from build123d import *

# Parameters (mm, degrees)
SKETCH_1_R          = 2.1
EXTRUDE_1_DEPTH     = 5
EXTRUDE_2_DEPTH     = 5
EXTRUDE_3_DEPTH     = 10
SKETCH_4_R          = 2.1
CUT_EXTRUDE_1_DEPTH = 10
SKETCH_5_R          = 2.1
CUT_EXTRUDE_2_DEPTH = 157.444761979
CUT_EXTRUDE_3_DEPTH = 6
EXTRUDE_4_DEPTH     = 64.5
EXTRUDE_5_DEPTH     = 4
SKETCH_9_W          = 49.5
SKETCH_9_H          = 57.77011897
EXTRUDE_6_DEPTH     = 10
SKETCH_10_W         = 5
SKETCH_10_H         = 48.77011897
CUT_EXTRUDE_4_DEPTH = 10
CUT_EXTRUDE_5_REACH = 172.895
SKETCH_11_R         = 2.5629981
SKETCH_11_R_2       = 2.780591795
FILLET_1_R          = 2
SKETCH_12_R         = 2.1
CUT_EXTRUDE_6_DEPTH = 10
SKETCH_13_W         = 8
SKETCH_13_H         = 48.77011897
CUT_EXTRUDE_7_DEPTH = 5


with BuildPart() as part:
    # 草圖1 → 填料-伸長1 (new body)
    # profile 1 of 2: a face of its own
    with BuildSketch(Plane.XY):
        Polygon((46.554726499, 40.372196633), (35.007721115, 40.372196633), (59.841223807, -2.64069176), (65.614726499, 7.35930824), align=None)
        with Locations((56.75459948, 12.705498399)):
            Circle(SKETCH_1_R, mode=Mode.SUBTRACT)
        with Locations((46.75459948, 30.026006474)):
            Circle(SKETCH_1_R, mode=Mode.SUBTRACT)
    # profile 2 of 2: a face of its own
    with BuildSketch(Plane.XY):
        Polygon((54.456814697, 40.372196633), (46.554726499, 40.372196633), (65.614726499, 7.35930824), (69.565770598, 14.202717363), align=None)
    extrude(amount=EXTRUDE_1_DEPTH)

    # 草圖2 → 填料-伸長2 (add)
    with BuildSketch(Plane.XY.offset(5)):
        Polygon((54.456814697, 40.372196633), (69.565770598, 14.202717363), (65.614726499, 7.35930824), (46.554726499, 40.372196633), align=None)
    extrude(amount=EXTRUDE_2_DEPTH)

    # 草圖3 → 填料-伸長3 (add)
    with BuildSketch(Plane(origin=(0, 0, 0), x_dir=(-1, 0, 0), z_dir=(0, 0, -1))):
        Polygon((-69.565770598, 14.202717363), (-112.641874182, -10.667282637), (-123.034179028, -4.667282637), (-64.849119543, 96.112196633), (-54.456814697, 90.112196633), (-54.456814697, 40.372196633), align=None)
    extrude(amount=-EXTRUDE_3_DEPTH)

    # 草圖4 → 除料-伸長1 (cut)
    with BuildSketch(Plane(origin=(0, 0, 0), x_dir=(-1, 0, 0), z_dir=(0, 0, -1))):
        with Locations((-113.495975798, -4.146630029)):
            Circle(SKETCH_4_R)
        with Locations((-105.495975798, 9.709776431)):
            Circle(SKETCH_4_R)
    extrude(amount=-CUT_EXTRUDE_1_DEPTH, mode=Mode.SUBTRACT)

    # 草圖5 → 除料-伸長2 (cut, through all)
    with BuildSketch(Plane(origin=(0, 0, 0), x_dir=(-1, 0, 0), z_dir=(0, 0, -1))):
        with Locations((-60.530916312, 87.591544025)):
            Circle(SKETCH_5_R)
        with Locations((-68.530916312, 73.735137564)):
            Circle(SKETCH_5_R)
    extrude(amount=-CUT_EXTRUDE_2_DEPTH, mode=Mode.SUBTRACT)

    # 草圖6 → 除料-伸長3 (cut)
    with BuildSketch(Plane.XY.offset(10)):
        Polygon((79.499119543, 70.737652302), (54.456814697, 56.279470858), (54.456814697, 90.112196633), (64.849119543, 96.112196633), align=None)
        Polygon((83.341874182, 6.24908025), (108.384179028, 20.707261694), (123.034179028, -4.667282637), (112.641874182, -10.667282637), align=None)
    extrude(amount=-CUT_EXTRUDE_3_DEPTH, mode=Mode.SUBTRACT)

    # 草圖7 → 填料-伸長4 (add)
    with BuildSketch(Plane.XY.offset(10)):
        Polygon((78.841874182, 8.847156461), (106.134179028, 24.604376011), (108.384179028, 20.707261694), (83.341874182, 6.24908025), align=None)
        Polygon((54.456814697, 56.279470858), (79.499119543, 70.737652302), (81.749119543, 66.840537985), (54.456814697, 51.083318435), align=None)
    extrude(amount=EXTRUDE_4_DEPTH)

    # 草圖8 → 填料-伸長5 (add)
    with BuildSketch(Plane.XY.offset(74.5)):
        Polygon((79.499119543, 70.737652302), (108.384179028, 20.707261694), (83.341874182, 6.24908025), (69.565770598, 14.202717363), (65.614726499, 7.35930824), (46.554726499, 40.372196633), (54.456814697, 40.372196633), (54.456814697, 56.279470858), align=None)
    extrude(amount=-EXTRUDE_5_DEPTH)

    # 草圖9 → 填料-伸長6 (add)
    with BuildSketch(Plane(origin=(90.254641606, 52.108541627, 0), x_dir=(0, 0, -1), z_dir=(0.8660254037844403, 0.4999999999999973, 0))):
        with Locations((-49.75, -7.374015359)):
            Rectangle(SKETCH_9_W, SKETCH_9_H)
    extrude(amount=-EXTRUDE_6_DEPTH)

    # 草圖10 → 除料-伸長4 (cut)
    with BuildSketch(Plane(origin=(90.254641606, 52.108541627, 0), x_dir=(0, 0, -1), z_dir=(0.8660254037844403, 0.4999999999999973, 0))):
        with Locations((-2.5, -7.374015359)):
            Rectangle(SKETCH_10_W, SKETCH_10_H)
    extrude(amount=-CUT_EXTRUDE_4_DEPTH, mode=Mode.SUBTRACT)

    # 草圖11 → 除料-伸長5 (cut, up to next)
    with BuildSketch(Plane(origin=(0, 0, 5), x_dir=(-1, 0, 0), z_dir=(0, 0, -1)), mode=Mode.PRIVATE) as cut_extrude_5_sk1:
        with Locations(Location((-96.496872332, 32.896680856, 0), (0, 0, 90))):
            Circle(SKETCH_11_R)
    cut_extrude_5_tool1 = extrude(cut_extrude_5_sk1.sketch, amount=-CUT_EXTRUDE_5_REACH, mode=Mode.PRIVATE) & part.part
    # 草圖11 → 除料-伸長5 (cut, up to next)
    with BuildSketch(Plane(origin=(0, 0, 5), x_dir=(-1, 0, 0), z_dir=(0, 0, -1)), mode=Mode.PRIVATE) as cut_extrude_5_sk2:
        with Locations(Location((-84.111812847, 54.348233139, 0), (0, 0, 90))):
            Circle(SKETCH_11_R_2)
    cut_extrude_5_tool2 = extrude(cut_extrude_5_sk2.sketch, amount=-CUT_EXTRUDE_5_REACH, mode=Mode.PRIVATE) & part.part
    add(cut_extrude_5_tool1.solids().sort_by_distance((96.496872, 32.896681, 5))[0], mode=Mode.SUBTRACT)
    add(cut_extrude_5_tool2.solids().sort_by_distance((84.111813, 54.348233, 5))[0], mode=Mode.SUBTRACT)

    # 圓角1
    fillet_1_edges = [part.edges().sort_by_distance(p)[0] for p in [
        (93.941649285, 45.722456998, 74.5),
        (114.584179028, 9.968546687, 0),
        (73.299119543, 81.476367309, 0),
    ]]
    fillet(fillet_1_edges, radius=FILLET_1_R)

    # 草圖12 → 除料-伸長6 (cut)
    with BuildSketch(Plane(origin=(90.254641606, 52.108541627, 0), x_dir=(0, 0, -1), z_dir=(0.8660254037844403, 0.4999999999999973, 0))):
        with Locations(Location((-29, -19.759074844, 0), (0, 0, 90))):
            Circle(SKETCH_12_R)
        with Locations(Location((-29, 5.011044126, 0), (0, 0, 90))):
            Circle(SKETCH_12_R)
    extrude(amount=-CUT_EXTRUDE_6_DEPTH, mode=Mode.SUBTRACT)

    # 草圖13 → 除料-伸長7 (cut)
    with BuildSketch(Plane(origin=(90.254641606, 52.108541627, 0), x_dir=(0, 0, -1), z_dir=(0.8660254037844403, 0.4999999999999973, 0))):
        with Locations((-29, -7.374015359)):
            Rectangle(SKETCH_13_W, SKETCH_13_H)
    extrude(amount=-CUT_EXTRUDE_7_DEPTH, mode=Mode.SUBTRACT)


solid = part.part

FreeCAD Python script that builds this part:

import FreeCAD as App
import Part
import Sketcher
from FreeCAD import Vector
Q = App.Units.Quantity


def edges_at(feature, points):
    """Names of the edges that pass closest to the given points."""
    edges = feature.Shape.Edges
    near = lambda p: min(range(len(edges)), key=lambda i: edges[i].distToShape(Part.Vertex(*p))[0])
    return sorted({f"Edge{near(p) + 1}" for p in points})


def add_polygon(sketch, points):
    """Adds a closed chain of lines whose ends are joined by coincident constraints."""
    first, n = sketch.GeometryCount, len(points)
    for a, b in zip(points, points[1:] + points[:1]):
        sketch.addGeometry(Part.LineSegment(App.Vector(*a, 0), App.Vector(*b, 0)), False)
    for i in range(n):
        sketch.addConstraint(Sketcher.Constraint("Coincident", first + i, 2, first + (i + 1) % n, 1))

doc = App.newDocument("Part")
body = doc.addObject("PartDesign::Body", "Body")

# Sketch on XY plane
sketch1 = body.newObject("Sketcher::SketchObject", "Sketch")
sketch1.AttachmentSupport = (doc.getObject("XY_Plane"), [""])
sketch1.MapMode = "FlatFace"
add_polygon(sketch1, [(35.007721, 40.372197), (59.841224, -2.640692), (65.614726, 7.359308), (69.565771, 14.202717), (54.456815, 40.372197)])  # lines 0-4
sketch1.addGeometry(Part.Circle(Vector(56.754599, 12.705498, 0), Vector(0, 0, 1), 2.1), False)  # 5
sketch1.addGeometry(Part.Circle(Vector(46.754599, 30.026006, 0), Vector(0, 0, 1), 2.1), False)  # 6
sketch1.addConstraint([
    Sketcher.Constraint("Horizontal", 4),
    Sketcher.Constraint("Equal", 5, 6),
    Sketcher.Constraint("Parallel", 1, 2),
    Sketcher.Constraint("Parallel", 0, 3),
    Sketcher.Constraint("Diameter", 5, 4.2),
    Sketcher.Constraint("Angle", 0, Q("-60 deg")),
    Sketcher.Constraint("Angle", 1, Q("60 deg")),
    Sketcher.Constraint("DistanceX", 6, 3, 5, 3, 10.0),
    Sketcher.Constraint("DistanceY", 0, 2, 1, 2, 10.0),
    Sketcher.Constraint("DistanceX", -1, 1, 5, 3, 56.754599),
    Sketcher.Constraint("DistanceY", -1, 1, 5, 3, 12.705498),
    Sketcher.Constraint("DistanceY", 0, 2, 6, 3, 32.666698),
    Sketcher.Constraint("DistanceY", 5, 3, 3, 2, 27.666698),
    Sketcher.Constraint("Distance", 2, 7.902088),
    Sketcher.Constraint("Distance", 3, 30.217912),
    Sketcher.Constraint("DistanceX", -1, 1, 2, 2, 69.565771),
])
pad1 = body.newObject("PartDesign::Pad", "Pad")
pad1.Profile = sketch1
pad1.Length = 5

# Sketch on XY plane
sketch2 = body.newObject("Sketcher::SketchObject", "Sketch001")
sketch2.AttachmentSupport = (doc.getObject("XY_Plane"), [""])
sketch2.MapMode = "FlatFace"
sketch2.AttachmentOffset = App.Placement(Vector(0, 0, 5), App.Rotation())
add_polygon(sketch2, [(69.565771, 14.202717), (54.456815, 40.372197), (46.554726, 40.372197), (65.614726, 7.359308)])  # lines 0-3
sketch2.addConstraint([
    Sketcher.Constraint("Horizontal", 1),
    Sketcher.Constraint("Parallel", 0, 2),
    Sketcher.Constraint("Angle", 0, Q("120 deg")),
    Sketcher.Constraint("Angle", 3, Q("60 deg")),
    Sketcher.Constraint("Distance", 2, 38.12),
    Sketcher.Constraint("DistanceX", 1, 2, 1, 1, 7.902088),
    Sketcher.Constraint("DistanceY", -1, 1, 2, 2, 7.359308),
    Sketcher.Constraint("DistanceX", -1, 1, 3, 2, 69.565771),
])
pad2 = body.newObject("PartDesign::Pad", "Pad001")
pad2.Profile = sketch2
pad2.Length = 5

# Sketch on XY plane
sketch3 = body.newObject("Sketcher::SketchObject", "Sketch002")
sketch3.AttachmentSupport = (doc.getObject("XY_Plane"), [""])
sketch3.MapMode = "FlatFace"
add_polygon(sketch3, [(112.641874, -10.667283), (69.565771, 14.202717), (54.456815, 40.372197), (54.456815, 90.112197), (64.84912, 96.112197), (123.034179, -4.667283)])  # lines 0-5
sketch3.addConstraint([
    Sketcher.Constraint("Vertical", 2),
    Sketcher.Constraint("Perpendicular", 1, 3),
    Sketcher.Constraint("Perpendicular", 3, 4),
    Sketcher.Constraint("Perpendicular", 4, 5),
    Sketcher.Constraint("Equal", 3, 5),
    Sketcher.Constraint("Angle", 0, Q("150 deg")),
    Sketcher.Constraint("Angle", 1, Q("120 deg")),
    Sketcher.Constraint("Distance", 3, 12.0),
    Sketcher.Constraint("DistanceY", 2, 1, 2, 2, 49.74),
    Sketcher.Constraint("Distance", 1, 30.217912),
    Sketcher.Constraint("DistanceX", -1, 1, 0, 2, 69.565771),
    Sketcher.Constraint("DistanceY", -1, 1, 0, 2, 14.202717),
])
pad3 = body.newObject("PartDesign::Pad", "Pad002")
pad3.Profile = sketch3
pad3.Length = 10

# Sketch on XY plane
sketch4 = body.newObject("Sketcher::SketchObject", "Sketch003")
sketch4.AttachmentSupport = (doc.getObject("XY_Plane"), [""])
sketch4.MapMode = "FlatFace"
sketch4.addGeometry([
    Part.Circle(Vector(113.495976, -4.14663, 0), Vector(0, 0, 1), 2.1),
    Part.Circle(Vector(105.495976, 9.709776, 0), Vector(0, 0, 1), 2.1),
], False)
sketch4.addConstraint([
    Sketcher.Constraint("Equal", 0, 1),
    Sketcher.Constraint("Diameter", 0, 4.2),
    Sketcher.Constraint("DistanceX", 1, 3, 0, 3, 8.0),
    Sketcher.Constraint("DistanceY", 0, 3, -1, 1, 4.14663),
    Sketcher.Constraint("DistanceX", -1, 1, 0, 3, 113.495976),
    Sketcher.Constraint("DistanceY", -1, 1, 1, 3, 9.709776),
])
pocket1 = body.newObject("PartDesign::Pocket", "Pocket")
pocket1.Profile = sketch4
pocket1.Length = 10
pocket1.Reversed = True

# Sketch on XY plane
sketch5 = body.newObject("Sketcher::SketchObject", "Sketch004")
sketch5.AttachmentSupport = (doc.getObject("XY_Plane"), [""])
sketch5.MapMode = "FlatFace"
sketch5.addGeometry([
    Part.Circle(Vector(60.530916, 87.591544, 0), Vector(0, 0, 1), 2.1),
    Part.Circle(Vector(68.530916, 73.735138, 0), Vector(0, 0, 1), 2.1),
], False)
sketch5.addConstraint([
    Sketcher.Constraint("Equal", 0, 1),
    Sketcher.Constraint("Diameter", 0, 4.2),
    Sketcher.Constraint("DistanceX", 0, 3, 1, 3, 8.0),
    Sketcher.Constraint("DistanceX", -1, 1, 0, 3, 60.530916),
    Sketcher.Constraint("DistanceY", -1, 1, 0, 3, 87.591544),
    Sketcher.Constraint("DistanceY", -1, 1, 1, 3, 73.735138),
])
pocket2 = body.newObject("PartDesign::Pocket", "Pocket001")
pocket2.Profile = sketch5
pocket2.Type = "ThroughAll"
pocket2.Reversed = True

# Sketch on XY plane
sketch6 = body.newObject("Sketcher::SketchObject", "Sketch005")
sketch6.AttachmentSupport = (doc.getObject("XY_Plane"), [""])
sketch6.MapMode = "FlatFace"
sketch6.AttachmentOffset = App.Placement(Vector(0, 0, 10), App.Rotation())
add_polygon(sketch6, [(54.456815, 56.279471), (79.49912, 70.737652), (64.84912, 96.112197), (54.456815, 90.112197)])  # lines 0-3
add_polygon(sketch6, [(108.384179, 20.707262), (83.341874, 6.24908), (112.641874, -10.667283), (123.034179, -4.667283)])  # lines 4-7
sketch6.addConstraint([
    Sketcher.Constraint("Vertical", 3),
    Sketcher.Constraint("Perpendicular", 0, 1),
    Sketcher.Constraint("Perpendicular", 1, 2),
    Sketcher.Constraint("Parallel", 2, 4),
    Sketcher.Constraint("Parallel", 4, 6),
    Sketcher.Constraint("Perpendicular", 6, 7),
    Sketcher.Constraint("Equal", 0, 4),
    Sketcher.Constraint("Equal", 2, 6),
    Sketcher.Constraint("Equal", 1, 7),
    Sketcher.Constraint("Angle", 0, Q("30 deg")),
    Sketcher.Constraint("Distance", 2, 12.0),
    Sketcher.Constraint("Distance", 1, 29.3),
    Sketcher.Constraint("DistanceX", -1, 1, 0, 2, 79.49912),
    Sketcher.Constraint("DistanceY", -1, 1, 3, 2, 56.279471),
    Sketcher.Constraint("DistanceY", -1, 1, 4, 2, 6.24908),
    Sketcher.Constraint("DistanceX", -1, 1, 6, 2, 123.034179),
])
pocket3 = body.newObject("PartDesign::Pocket", "Pocket002")
pocket3.Profile = sketch6
pocket3.Length = 6

# Sketch on XY plane
sketch7 = body.newObject("Sketcher::SketchObject", "Sketch006")
sketch7.AttachmentSupport = (doc.getObject("XY_Plane"), [""])
sketch7.MapMode = "FlatFace"
sketch7.AttachmentOffset = App.Placement(Vector(0, 0, 10), App.Rotation())
add_polygon(sketch7, [(106.134179, 24.604376), (78.841874, 8.847156), (83.341874, 6.24908), (108.384179, 20.707262)])  # lines 0-3
add_polygon(sketch7, [(79.49912, 70.737652), (54.456815, 56.279471), (54.456815, 51.083318), (81.74912, 66.840538)])  # lines 4-7
sketch7.addConstraint([
    Sketcher.Constraint("Vertical", 5),
    Sketcher.Constraint("Parallel", 0, 2),
    Sketcher.Constraint("Perpendicular", 2, 3),
    Sketcher.Constraint("Perpendicular", 3, 4),
    Sketcher.Constraint("Parallel", 4, 6),
    Sketcher.Constraint("Perpendicular", 6, 7),
    Sketcher.Constraint("Equal", 2, 4),
    Sketcher.Constraint("Equal", 0, 6),
    Sketcher.Constraint("Equal", 3, 7),
    Sketcher.Constraint("Angle", 0, Q("-150 deg")),
    Sketcher.Constraint("Distance", 3, 4.5),
    Sketcher.Constraint("Distance", 0, 31.514439),
    Sketcher.Constraint("DistanceY", -1, 1, 1, 2, 6.24908),
    Sketcher.Constraint("DistanceX", -1, 1, 2, 2, 108.384179),
    Sketcher.Constraint("DistanceY", -1, 1, 4, 2, 56.279471),
    Sketcher.Constraint("DistanceX", -1, 1, 6, 2, 81.74912),
])
pad4 = body.newObject("PartDesign::Pad", "Pad003")
pad4.Profile = sketch7
pad4.Length = 64.5

# Sketch on XY plane
sketch8 = body.newObject("Sketcher::SketchObject", "Sketch007")
sketch8.AttachmentSupport = (doc.getObject("XY_Plane"), [""])
sketch8.MapMode = "FlatFace"
sketch8.AttachmentOffset = App.Placement(Vector(0, 0, 74.5), App.Rotation())
add_polygon(sketch8, [(108.384179, 20.707262), (79.49912, 70.737652), (54.456815, 56.279471), (54.456815, 40.372197), (46.554726, 40.372197), (65.614726, 7.359308), (69.565771, 14.202717), (83.341874, 6.24908)])  # lines 0-7
sketch8.addConstraint([
    Sketcher.Constraint("Vertical", 2),
    Sketcher.Constraint("Horizontal", 3),
    Sketcher.Constraint("Perpendicular", 0, 1),
    Sketcher.Constraint("Perpendicular", 1, 4),
    Sketcher.Constraint("Perpendicular", 5, 6),
    Sketcher.Constraint("Perpendicular", 4, 7),
    Sketcher.Constraint("Equal", 1, 7),
    Sketcher.Constraint("Angle", 0, Q("120 deg")),
    Sketcher.Constraint("Angle", 5, Q("60 deg")),
    Sketcher.Constraint("Distance", 4, 38.12),
    Sketcher.Constraint("DistanceX", 3, 2, 3, 1, 7.902088),
    Sketcher.Constraint("Distance", 0, 57.770119),
    Sketcher.Constraint("Distance", 5, 7.902088),
    Sketcher.Constraint("DistanceX", -1, 1, 0, 2, 79.49912),
    Sketcher.Constraint("DistanceY", -1, 1, 1, 2, 56.279471),
    Sketcher.Constraint("DistanceX", -1, 1, 5, 2, 69.565771),
])
pad5 = body.newObject("PartDesign::Pad", "Pad004")
pad5.Profile = sketch8
pad5.Length = 4
pad5.Reversed = True

# Sketch on an angled plane
sketch9 = body.newObject("Sketcher::SketchObject", "Sketch008")
sketch9.Placement = App.Placement(Vector(90.254642, 52.108542, 0), App.Rotation(Vector(0, 0, -1), Vector(-0.5, 0.866025404, 0), Vector(0.866025404, 0.5, 0), "ZXY"))
add_polygon(sketch9, [(-74.5, 21.511044), (-74.5, -36.259075), (-25, -36.259075), (-25, 21.511044)])  # lines 0-3
sketch9.addConstraint([
    Sketcher.Constraint("Vertical", 0),
    Sketcher.Constraint("Horizontal", 1),
    Sketcher.Constraint("Vertical", 2),
    Sketcher.Constraint("Horizontal", 3),
    Sketcher.Constraint("DistanceX", 1, 1, 1, 2, 49.5),
    Sketcher.Constraint("DistanceX", 1, 2, -1, 1, 25.0),
    Sketcher.Constraint("DistanceY", 0, 2, 0, 1, 57.770119),
    Sketcher.Constraint("DistanceY", 0, 2, -1, 1, 36.259075),
])
pad6 = body.newObject("PartDesign::Pad", "Pad005")
pad6.Profile = sketch9
pad6.Length = 10
pad6.Reversed = True

# Sketch on an angled plane
sketch10 = body.newObject("Sketcher::SketchObject", "Sketch009")
sketch10.Placement = App.Placement(Vector(90.254642, 52.108542, 0), App.Rotation(Vector(0, 0, -1), Vector(-0.5, 0.866025404, 0), Vector(0.866025404, 0.5, 0), "ZXY"))
add_polygon(sketch10, [(-5, 17.011044), (-5, -31.759075), (0, -31.759075), (0, 17.011044)])  # lines 0-3
sketch10.addConstraint([
    Sketcher.Constraint("Vertical", 0),
    Sketcher.Constraint("Horizontal", 1),
    Sketcher.Constraint("Vertical", 2),
    Sketcher.Constraint("Horizontal", 3),
    Sketcher.Constraint("PointOnObject", 1, 2, -2),
    Sketcher.Constraint("DistanceX", 1, 1, 1, 2, 5.0),
    Sketcher.Constraint("DistanceY", 0, 2, 0, 1, 48.770119),
    Sketcher.Constraint("DistanceY", 0, 2, -1, 1, 31.759075),
])
pocket4 = body.newObject("PartDesign::Pocket", "Pocket003")
pocket4.Profile = sketch10
pocket4.Length = 10

# Sketch on XY plane
sketch11 = body.newObject("Sketcher::SketchObject", "Sketch010")
sketch11.AttachmentSupport = (doc.getObject("XY_Plane"), [""])
sketch11.MapMode = "FlatFace"
sketch11.AttachmentOffset = App.Placement(Vector(0, 0, 5), App.Rotation())
sketch11.addGeometry(Part.Circle(Vector(96.496872, 32.896681, 0), Vector(0, 0, 1), 2.562998), False)
sketch11.addConstraint([
    Sketcher.Constraint("Diameter", 0, 5.125996),
    Sketcher.Constraint("DistanceY", -1, 1, 0, 3, 32.896681),
    Sketcher.Constraint("DistanceX", -1, 1, 0, 3, 96.496872),
])
pocket5 = body.newObject("PartDesign::Pocket", "Pocket004")
pocket5.Profile = sketch11
pocket5.Type = "UpToFirst"
pocket5.Reversed = True

# Sketch on XY plane
sketch12 = body.newObject("Sketcher::SketchObject", "Sketch011")
sketch12.AttachmentSupport = (doc.getObject("XY_Plane"), [""])
sketch12.MapMode = "FlatFace"
sketch12.AttachmentOffset = App.Placement(Vector(0, 0, 5), App.Rotation())
sketch12.addGeometry(Part.Circle(Vector(84.111813, 54.348233, 0), Vector(0, 0, 1), 2.780592), False)
sketch12.addConstraint([
    Sketcher.Constraint("Diameter", 0, 5.561184),
    Sketcher.Constraint("DistanceX", -1, 1, 0, 3, 84.111813),
    Sketcher.Constraint("DistanceY", -1, 1, 0, 3, 54.348233),
])
pocket6 = body.newObject("PartDesign::Pocket", "Pocket005")
pocket6.Profile = sketch12
pocket6.Type = "UpToFirst"
pocket6.Reversed = True
doc.recompute()

fillet = body.newObject("PartDesign::Fillet", "Fillet")
fillet.Base = (pocket6, edges_at(pocket6, [(93.942, 45.722, 74.5), (114.584, 9.969, 0), (73.299, 81.476, 0)]))
fillet.Radius = 2

# Sketch on an angled plane
sketch13 = body.newObject("Sketcher::SketchObject", "Sketch012")
sketch13.Placement = App.Placement(Vector(90.254642, 52.108542, 0), App.Rotation(Vector(0, 0, -1), Vector(-0.5, 0.866025404, 0), Vector(0.866025404, 0.5, 0), "ZXY"))
sketch13.addGeometry([
    Part.Circle(Vector(-29, -19.759075, 0), Vector(0, 0, 1), 2.1),
    Part.Circle(Vector(-29, 5.011044, 0), Vector(0, 0, 1), 2.1),
], False)
sketch13.addConstraint([
    Sketcher.Constraint("Equal", 0, 1),
    Sketcher.Constraint("Vertical", 0, 3, 1, 3),
    Sketcher.Constraint("Diameter", 0, 4.2),
    Sketcher.Constraint("DistanceX", 0, 3, -1, 1, 29.0),
    Sketcher.Constraint("DistanceY", 0, 3, 1, 3, 24.770119),
    Sketcher.Constraint("DistanceY", 0, 3, -1, 1, 19.759075),
])
pocket7 = body.newObject("PartDesign::Pocket", "Pocket006")
pocket7.Profile = sketch13
pocket7.Length = 10

# Sketch on an angled plane
sketch14 = body.newObject("Sketcher::SketchObject", "Sketch013")
sketch14.Placement = App.Placement(Vector(90.254642, 52.108542, 0), App.Rotation(Vector(0, 0, -1), Vector(-0.5, 0.866025404, 0), Vector(0.866025404, 0.5, 0), "ZXY"))
add_polygon(sketch14, [(-33, 17.011044), (-33, -31.759075), (-25, -31.759075), (-25, 17.011044)])  # lines 0-3
sketch14.addConstraint([
    Sketcher.Constraint("Vertical", 0),
    Sketcher.Constraint("Horizontal", 1),
    Sketcher.Constraint("Vertical", 2),
    Sketcher.Constraint("Horizontal", 3),
    Sketcher.Constraint("DistanceX", 1, 1, 1, 2, 8.0),
    Sketcher.Constraint("DistanceX", 0, 2, -1, 1, 33.0),
    Sketcher.Constraint("DistanceY", 0, 2, 0, 1, 48.770119),
    Sketcher.Constraint("DistanceY", 0, 2, -1, 1, 31.759075),
])
pocket8 = body.newObject("PartDesign::Pocket", "Pocket007")
pocket8.Profile = sketch14
pocket8.Length = 5

doc.recompute()
